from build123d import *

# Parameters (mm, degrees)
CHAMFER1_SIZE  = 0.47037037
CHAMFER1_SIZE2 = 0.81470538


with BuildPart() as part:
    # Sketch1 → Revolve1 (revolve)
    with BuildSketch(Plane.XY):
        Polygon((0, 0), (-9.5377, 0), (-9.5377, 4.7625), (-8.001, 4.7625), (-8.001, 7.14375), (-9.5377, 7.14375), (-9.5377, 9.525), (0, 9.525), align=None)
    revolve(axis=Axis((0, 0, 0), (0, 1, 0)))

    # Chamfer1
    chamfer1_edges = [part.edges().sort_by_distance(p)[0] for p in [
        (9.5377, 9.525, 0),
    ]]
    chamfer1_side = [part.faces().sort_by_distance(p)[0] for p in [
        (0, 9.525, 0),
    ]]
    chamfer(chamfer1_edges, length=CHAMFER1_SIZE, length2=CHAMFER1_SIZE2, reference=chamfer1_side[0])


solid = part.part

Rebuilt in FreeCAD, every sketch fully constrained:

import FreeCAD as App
import Part
import Sketcher
from FreeCAD import Vector
Q = App.Units.Quantity


def edges_at(feature, points):
    """Names of the edges that pass closest to the given points."""
    edges = feature.Shape.Edges
    near = lambda p: min(range(len(edges)), key=lambda i: edges[i].distToShape(Part.Vertex(*p))[0])
    return sorted({f"Edge{near(p) + 1}" for p in points})


def add_polygon(sketch, points):
    """Adds a closed chain of lines whose ends are joined by coincident constraints."""
    first, n = sketch.GeometryCount, len(points)
    for a, b in zip(points, points[1:] + points[:1]):
        sketch.addGeometry(Part.LineSegment(App.Vector(*a, 0), App.Vector(*b, 0)), False)
    for i in range(n):
        sketch.addConstraint(Sketcher.Constraint("Coincident", first + i, 2, first + (i + 1) % n, 1))

doc = App.newDocument("Part")
body = doc.addObject("PartDesign::Body", "Body")

# Sketch on XY plane
sketch1 = doc.addObject("Sketcher::SketchObject", "Sketch")
body.addObject(sketch1)
sketch1.AttachmentSupport = (doc.XY_Plane, [""])
sketch1.MapMode = "FlatFace"
add_polygon(sketch1, [(-9.5377, 0), (0, 0), (0, 9.525), (-9.5377, 9.525), (-9.5377, 7.14375), (-8.001, 7.14375), (-8.001, 4.7625), (-9.5377, 4.7625)])  # lines 0-7
sketch1.addConstraint(Sketcher.Constraint("Horizontal", 0))
sketch1.addConstraint(Sketcher.Constraint("Vertical", 1))
sketch1.addConstraint(Sketcher.Constraint("Horizontal", 2))
sketch1.addConstraint(Sketcher.Constraint("Vertical", 3))
sketch1.addConstraint(Sketcher.Constraint("Horizontal", 4))
sketch1.addConstraint(Sketcher.Constraint("Vertical", 5))
sketch1.addConstraint(Sketcher.Constraint("Horizontal", 6))
sketch1.addConstraint(Sketcher.Constraint("Vertical", 7))
sketch1.addConstraint(Sketcher.Constraint("Coincident", 0, 2, -1, 1))
sketch1.addConstraint(Sketcher.Constraint("Vertical", 3, 2, 6, 2))
sketch1.addConstraint(Sketcher.Constraint("Equal", 3, 5))
sketch1.addConstraint(Sketcher.Constraint("DistanceY", 1, 1, 1, 2, Q("0.375 in")))
sketch1.addConstraint(Sketcher.Constraint("DistanceY", 3, 2, 3, 1, Q("0.09375 in")))
sketch1.addConstraint(Sketcher.Constraint("DistanceX", 0, 1, 0, 2, Q("0.3755 in")))
sketch1.addConstraint(Sketcher.Constraint("DistanceX", 4, 1, 4, 2, Q("0.0605 in")))
revolution = doc.addObject("PartDesign::Revolution", "Revolution")
body.addObject(revolution)
revolution.Profile = sketch1
revolution.ReferenceAxis = (sketch1, ["V_Axis"])
revolution.Angle = 360
doc.recompute()

chamfer = doc.addObject("PartDesign::Chamfer", "Chamfer")
body.addObject(chamfer)
chamfer.Base = (revolution, edges_at(revolution, [(9.538, 9.525, 0)]))
chamfer.ChamferType = "Two distances"
chamfer.Size = 0.47037
chamfer.Size2 = 0.814705

doc.recompute()
